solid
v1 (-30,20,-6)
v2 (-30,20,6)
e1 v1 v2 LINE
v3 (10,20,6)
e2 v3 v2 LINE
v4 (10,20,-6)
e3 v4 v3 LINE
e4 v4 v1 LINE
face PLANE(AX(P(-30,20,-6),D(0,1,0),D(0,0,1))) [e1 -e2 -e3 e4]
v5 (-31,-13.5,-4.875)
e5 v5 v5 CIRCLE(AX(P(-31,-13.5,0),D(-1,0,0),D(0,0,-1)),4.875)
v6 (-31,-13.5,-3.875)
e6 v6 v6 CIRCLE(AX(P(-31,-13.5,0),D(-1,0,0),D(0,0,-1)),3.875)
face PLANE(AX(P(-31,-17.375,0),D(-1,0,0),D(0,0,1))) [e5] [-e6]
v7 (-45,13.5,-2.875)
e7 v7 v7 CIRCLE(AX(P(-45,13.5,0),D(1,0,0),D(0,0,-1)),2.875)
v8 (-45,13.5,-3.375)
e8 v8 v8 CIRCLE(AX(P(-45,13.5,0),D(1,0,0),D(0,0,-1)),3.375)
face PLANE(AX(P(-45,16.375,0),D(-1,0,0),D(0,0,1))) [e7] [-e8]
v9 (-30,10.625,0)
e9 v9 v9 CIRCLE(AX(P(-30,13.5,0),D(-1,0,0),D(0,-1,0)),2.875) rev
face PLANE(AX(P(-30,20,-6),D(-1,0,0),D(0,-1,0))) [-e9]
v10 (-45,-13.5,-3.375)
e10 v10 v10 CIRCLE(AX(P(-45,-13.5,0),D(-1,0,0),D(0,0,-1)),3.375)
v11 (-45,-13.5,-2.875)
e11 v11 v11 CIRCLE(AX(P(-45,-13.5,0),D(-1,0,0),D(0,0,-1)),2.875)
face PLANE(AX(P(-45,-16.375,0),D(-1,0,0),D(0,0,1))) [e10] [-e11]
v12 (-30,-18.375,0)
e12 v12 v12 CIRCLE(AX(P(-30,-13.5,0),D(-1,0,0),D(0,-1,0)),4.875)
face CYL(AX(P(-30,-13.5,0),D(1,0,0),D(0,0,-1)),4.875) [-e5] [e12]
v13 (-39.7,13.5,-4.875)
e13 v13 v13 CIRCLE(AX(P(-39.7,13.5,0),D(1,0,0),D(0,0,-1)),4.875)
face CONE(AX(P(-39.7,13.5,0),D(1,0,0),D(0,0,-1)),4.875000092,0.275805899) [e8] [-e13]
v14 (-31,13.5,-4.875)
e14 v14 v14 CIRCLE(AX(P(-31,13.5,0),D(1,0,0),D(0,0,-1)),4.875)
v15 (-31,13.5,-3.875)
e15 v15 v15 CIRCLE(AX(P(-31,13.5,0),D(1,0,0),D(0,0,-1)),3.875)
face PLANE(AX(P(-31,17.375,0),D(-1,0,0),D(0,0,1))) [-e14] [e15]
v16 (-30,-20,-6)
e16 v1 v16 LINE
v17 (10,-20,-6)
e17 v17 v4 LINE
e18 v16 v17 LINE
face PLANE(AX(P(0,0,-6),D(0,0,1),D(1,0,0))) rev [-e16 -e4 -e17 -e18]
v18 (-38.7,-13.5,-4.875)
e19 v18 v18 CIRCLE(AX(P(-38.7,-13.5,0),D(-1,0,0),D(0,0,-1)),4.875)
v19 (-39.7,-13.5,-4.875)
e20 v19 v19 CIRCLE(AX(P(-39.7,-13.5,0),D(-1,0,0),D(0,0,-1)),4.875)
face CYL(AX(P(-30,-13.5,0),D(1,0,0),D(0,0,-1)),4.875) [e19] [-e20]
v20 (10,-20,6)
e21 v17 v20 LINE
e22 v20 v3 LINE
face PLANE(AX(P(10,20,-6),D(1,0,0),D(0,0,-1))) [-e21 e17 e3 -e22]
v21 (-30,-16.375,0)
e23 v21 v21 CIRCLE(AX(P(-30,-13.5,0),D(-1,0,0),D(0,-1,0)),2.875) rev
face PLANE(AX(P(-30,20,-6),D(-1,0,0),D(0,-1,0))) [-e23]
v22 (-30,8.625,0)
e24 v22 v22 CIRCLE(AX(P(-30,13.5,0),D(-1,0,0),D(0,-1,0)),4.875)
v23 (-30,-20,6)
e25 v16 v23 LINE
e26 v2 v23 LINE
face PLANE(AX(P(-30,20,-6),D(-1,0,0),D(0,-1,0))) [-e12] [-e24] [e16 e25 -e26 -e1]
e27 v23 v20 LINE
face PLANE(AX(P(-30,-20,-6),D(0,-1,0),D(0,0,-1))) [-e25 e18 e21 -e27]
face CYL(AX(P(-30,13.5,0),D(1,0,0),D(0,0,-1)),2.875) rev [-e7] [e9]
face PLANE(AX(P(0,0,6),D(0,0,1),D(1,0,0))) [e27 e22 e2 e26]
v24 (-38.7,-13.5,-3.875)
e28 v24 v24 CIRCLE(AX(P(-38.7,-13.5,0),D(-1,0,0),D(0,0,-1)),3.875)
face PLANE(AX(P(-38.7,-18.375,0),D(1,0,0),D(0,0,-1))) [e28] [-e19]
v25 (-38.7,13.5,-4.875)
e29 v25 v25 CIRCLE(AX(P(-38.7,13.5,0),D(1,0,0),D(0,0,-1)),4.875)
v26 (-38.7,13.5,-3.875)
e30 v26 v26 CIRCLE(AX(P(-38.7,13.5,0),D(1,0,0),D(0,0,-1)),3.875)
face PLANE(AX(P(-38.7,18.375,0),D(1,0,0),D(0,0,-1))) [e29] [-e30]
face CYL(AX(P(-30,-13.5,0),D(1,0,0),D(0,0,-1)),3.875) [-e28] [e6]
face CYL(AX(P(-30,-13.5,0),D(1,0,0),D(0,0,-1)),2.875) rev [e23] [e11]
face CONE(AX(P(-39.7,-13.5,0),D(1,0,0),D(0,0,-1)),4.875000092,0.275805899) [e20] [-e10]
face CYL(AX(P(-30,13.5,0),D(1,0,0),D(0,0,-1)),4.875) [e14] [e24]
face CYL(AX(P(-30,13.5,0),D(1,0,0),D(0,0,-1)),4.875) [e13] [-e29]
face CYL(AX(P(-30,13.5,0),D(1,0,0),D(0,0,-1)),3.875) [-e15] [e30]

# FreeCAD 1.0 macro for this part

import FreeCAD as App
import Part
import Sketcher
from FreeCAD import Vector
Q = App.Units.Quantity

doc = App.newDocument("Part")
body = doc.addObject("PartDesign::Body", "Body")

# Sketch on XY plane
sketch1 = body.newObject("Sketcher::SketchObject", "Sketch")
sketch1.AttachmentSupport = (doc.getObject("XY_Plane"), [""])
sketch1.MapMode = "FlatFace"
sketch1.addGeometry([
    Part.LineSegment(Vector(-30, 20, 0), Vector(-30, -20, 0)),
    Part.LineSegment(Vector(-30, -20, 0), Vector(10, -20, 0)),
    Part.LineSegment(Vector(10, -20, 0), Vector(10, 20, 0)),
    Part.LineSegment(Vector(10, 20, 0), Vector(-30, 20, 0)),
], False)
sketch1.addConstraint([
    Sketcher.Constraint("Coincident", 0, 2, 1, 1),
    Sketcher.Constraint("Coincident", 1, 2, 2, 1),
    Sketcher.Constraint("Coincident", 2, 2, 3, 1),
    Sketcher.Constraint("Coincident", 3, 2, 0, 1),
    Sketcher.Constraint("Vertical", 0),
    Sketcher.Constraint("Horizontal", 1),
    Sketcher.Constraint("Vertical", 2),
    Sketcher.Constraint("Horizontal", 3),
    Sketcher.Constraint("Equal", 3, 0),
    Sketcher.Constraint("DistanceX", 1, 1, 1, 2, Q("40 mm")),
    Sketcher.Constraint("DistanceX", 0, 2, -1, 1, Q("30 mm")),
    Sketcher.Constraint("DistanceY", 0, 2, -1, 1, Q("20 mm")),
])
pad1 = body.newObject("PartDesign::Pad", "Pad")
pad1.Profile = sketch1
pad1.Type = "TwoLengths"
pad1.Length = 6
pad1.Length2 = 6

# Sketch on XY plane
sketch2 = body.newObject("Sketcher::SketchObject", "Sketch001")
sketch2.AttachmentSupport = (doc.getObject("XY_Plane"), [""])
sketch2.MapMode = "FlatFace"
sketch2.addGeometry([
    Part.LineSegment(Vector(-45, 16.4, 0), Vector(-30, 16.4, 0)),  # 0
    Part.LineSegment(Vector(-30, 16.4, 0), Vector(-30, 18.4, 0)),  # 1
    Part.LineSegment(Vector(-30, 18.4, 0), Vector(-31, 18.4, 0)),  # 2
    Part.LineSegment(Vector(-31, 18.4, 0), Vector(-31, 17.4, 0)),  # 3
    Part.LineSegment(Vector(-31, 17.4, 0), Vector(-38.7, 17.4, 0)),  # 4
    Part.LineSegment(Vector(-38.7, 17.4, 0), Vector(-38.7, 18.4, 0)),  # 5
    Part.LineSegment(Vector(-38.7, 18.4, 0), Vector(-39.7, 18.4, 0)),  # 6
    Part.LineSegment(Vector(-39.7, 18.4, 0), Vector(-45, 16.9, 0)),  # 7
    Part.LineSegment(Vector(-45, 16.9, 0), Vector(-45, 16.4, 0)),  # 8
], False)
sketch2.addGeometry(Part.LineSegment(Vector(-30, 13.5, 0), Vector(-45, 13.5, 0)), True)  # axis
sketch2.addConstraint([
    Sketcher.Constraint("Coincident", 0, 2, 1, 1),
    Sketcher.Constraint("Coincident", 1, 2, 2, 1),
    Sketcher.Constraint("Coincident", 2, 2, 3, 1),
    Sketcher.Constraint("Coincident", 3, 2, 4, 1),
    Sketcher.Constraint("Coincident", 4, 2, 5, 1),
    Sketcher.Constraint("Coincident", 5, 2, 6, 1),
    Sketcher.Constraint("Coincident", 6, 2, 7, 1),
    Sketcher.Constraint("Coincident", 7, 2, 8, 1),
    Sketcher.Constraint("Coincident", 8, 2, 0, 1),
    Sketcher.Constraint("Horizontal", 0),
    Sketcher.Constraint("Vertical", 1),
    Sketcher.Constraint("Horizontal", 2),
    Sketcher.Constraint("Vertical", 3),
    Sketcher.Constraint("Horizontal", 4),
    Sketcher.Constraint("Vertical", 5),
    Sketcher.Constraint("Horizontal", 6),
    Sketcher.Constraint("Vertical", 8),
    Sketcher.Constraint("Horizontal", 9),
    Sketcher.Constraint("Horizontal", 2, 2, 5, 2),
    Sketcher.Constraint("Vertical", 1, 2, 9, 1),
    Sketcher.Constraint("Vertical", 8, 2, 9, 2),
    Sketcher.Constraint("Equal", 2, 6),
    Sketcher.Constraint("Equal", 6, 3),
    Sketcher.Constraint("DistanceX", 0, 1, 0, 2, Q("15 mm")),
    Sketcher.Constraint("DistanceX", 2, 2, 2, 1, Q("1 mm")),
    Sketcher.Constraint("DistanceY", 1, 1, 1, 2, Q("2 mm")),
    Sketcher.Constraint("DistanceX", 4, 2, 4, 1, Q("7.7 mm")),
    Sketcher.Constraint("DistanceY", 8, 2, 8, 1, Q("0.5 mm")),
    Sketcher.Constraint("DistanceX", 0, 2, -1, 1, Q("30 mm")),
    Sketcher.Constraint("DistanceY", -1, 1, 9, 1, Q("13.5 mm")),
    Sketcher.Constraint("DistanceY", -1, 1, 0, 2, Q("16.375 mm")),
])
revolution = body.newObject("PartDesign::Revolution", "Revolution")
revolution.Profile = sketch2
revolution.ReferenceAxis = (sketch2, ["Axis0"])
revolution.Angle = 360
doc.recompute()

mirrored = body.newObject("PartDesign::Mirrored", "Mirrored")
mirrored.Originals = [revolution]
mirrored.MirrorPlane = (doc.getObject("XZ_Plane"), [""])
body.Tip = mirrored

doc.recompute()
